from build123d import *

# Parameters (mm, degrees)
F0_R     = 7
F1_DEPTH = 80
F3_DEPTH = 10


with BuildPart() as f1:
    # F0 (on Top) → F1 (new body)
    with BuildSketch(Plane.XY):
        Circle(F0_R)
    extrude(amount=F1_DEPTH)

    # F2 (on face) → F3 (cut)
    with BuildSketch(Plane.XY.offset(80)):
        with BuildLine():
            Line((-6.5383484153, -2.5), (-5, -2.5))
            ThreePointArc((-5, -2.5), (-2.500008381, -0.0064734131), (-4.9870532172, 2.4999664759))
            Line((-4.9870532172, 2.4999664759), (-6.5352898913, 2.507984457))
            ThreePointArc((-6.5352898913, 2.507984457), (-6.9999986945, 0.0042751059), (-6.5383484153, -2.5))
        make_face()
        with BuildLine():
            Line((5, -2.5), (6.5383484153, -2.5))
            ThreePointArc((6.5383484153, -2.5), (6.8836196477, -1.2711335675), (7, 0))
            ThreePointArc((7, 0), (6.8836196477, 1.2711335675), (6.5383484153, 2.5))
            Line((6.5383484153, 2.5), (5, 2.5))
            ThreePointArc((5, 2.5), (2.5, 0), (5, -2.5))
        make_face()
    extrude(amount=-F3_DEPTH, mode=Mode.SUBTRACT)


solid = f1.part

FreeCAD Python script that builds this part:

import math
import FreeCAD as App
import Part
import Sketcher

V = App.Vector

doc = App.newDocument("Part")
body = doc.addObject("PartDesign::Body", "Body")

# Sketch on XY plane
sketch1 = body.newObject("Sketcher::SketchObject", "Sketch")
sketch1.AttachmentSupport = (doc.getObject("XY_Plane"), [""])
sketch1.MapMode = "FlatFace"
sketch1.addGeometry(Part.Circle(V(0, 0, 0), V(0, 0, 1), 7), False)
sketch1.addConstraint([
    Sketcher.Constraint("Coincident", 0, 3, -1, 1),
    Sketcher.Constraint("Diameter", 0, 14.0),
])
pad1 = body.newObject("PartDesign::Pad", "Pad")
pad1.Profile = sketch1
pad1.Length = 80

# Sketch on XY plane
sketch2 = body.newObject("Sketcher::SketchObject", "Sketch001")
sketch2.AttachmentSupport = (doc.getObject("XY_Plane"), [""])
sketch2.MapMode = "FlatFace"
sketch2.AttachmentOffset = App.Placement(V(0, 0, 80), App.Rotation())
sketch2.addGeometry([
    Part.LineSegment(V(-6.5, -2.5, 0), V(-5, -2.5, 0)),  # 0
    Part.ArcOfCircle(Part.Circle(V(-5, 0, 0), V(0, 0, 1), 2.5), math.radians(-90), math.radians(90)),  # 1
    Part.LineSegment(V(-5, 2.5, 0), V(-6.5, 2.5, 0)),  # 2
    Part.ArcOfCircle(Part.Circle(V(0, 0, 0), V(0, 0, 1), 7), math.radians(159), math.radians(201)),  # 3
    Part.LineSegment(V(5, -2.5, 0), V(6.5, -2.5, 0)),  # 4
    Part.ArcOfCircle(Part.Circle(V(0, 0, 0), V(0, 0, 1), 7), math.radians(-21), math.radians(0)),  # 5
    Part.ArcOfCircle(Part.Circle(V(0, 0, 0), V(0, 0, 1), 7), math.radians(0), math.radians(21)),  # 6
    Part.LineSegment(V(6.5, 2.5, 0), V(5, 2.5, 0)),  # 7
    Part.ArcOfCircle(Part.Circle(V(5, 0, 0), V(0, 0, 1), 2.5), math.radians(90), math.radians(270)),  # 8
], False)
sketch2.addConstraint([
    Sketcher.Constraint("Tangent", 0, 2, 1, 1),
    Sketcher.Constraint("Tangent", 1, 2, 2, 1),
    Sketcher.Constraint("Coincident", 2, 2, 3, 1),
    Sketcher.Constraint("Coincident", 3, 2, 0, 1),
    Sketcher.Constraint("Coincident", 4, 2, 5, 1),
    Sketcher.Constraint("Tangent", 5, 2, 6, 1),
    Sketcher.Constraint("Coincident", 6, 2, 7, 1),
    Sketcher.Constraint("Tangent", 7, 2, 8, 1),
    Sketcher.Constraint("Tangent", 8, 2, 4, 1),
    Sketcher.Constraint("Horizontal", 0),
    Sketcher.Constraint("Horizontal", 4),
    Sketcher.Constraint("Horizontal", 7),
    Sketcher.Constraint("Coincident", 3, 3, -1, 1),
    Sketcher.Constraint("Coincident", 5, 3, -1, 1),
    Sketcher.Constraint("Equal", 3, 5),
    Sketcher.Constraint("Equal", 5, 6),
    Sketcher.Constraint("Equal", 1, 8),
    Sketcher.Constraint("Symmetric", 1, 3, 8, 3, -1, 1),
    Sketcher.Constraint("PointOnObject", 1, 3, -1),
    Sketcher.Constraint("PointOnObject", 5, 2, -1),
    Sketcher.Constraint("Radius", 3, 7.0),
    Sketcher.Constraint("Radius", 1, 2.5),
    Sketcher.Constraint("DistanceX", 1, 3, -1, 1, 5.0),
    Sketcher.Constraint("DistanceX", 2, 2, -1, 1, 6.53529),
])
pocket1 = body.newObject("PartDesign::Pocket", "Pocket")
pocket1.Profile = sketch2
pocket1.Length = 10

doc.recompute()
